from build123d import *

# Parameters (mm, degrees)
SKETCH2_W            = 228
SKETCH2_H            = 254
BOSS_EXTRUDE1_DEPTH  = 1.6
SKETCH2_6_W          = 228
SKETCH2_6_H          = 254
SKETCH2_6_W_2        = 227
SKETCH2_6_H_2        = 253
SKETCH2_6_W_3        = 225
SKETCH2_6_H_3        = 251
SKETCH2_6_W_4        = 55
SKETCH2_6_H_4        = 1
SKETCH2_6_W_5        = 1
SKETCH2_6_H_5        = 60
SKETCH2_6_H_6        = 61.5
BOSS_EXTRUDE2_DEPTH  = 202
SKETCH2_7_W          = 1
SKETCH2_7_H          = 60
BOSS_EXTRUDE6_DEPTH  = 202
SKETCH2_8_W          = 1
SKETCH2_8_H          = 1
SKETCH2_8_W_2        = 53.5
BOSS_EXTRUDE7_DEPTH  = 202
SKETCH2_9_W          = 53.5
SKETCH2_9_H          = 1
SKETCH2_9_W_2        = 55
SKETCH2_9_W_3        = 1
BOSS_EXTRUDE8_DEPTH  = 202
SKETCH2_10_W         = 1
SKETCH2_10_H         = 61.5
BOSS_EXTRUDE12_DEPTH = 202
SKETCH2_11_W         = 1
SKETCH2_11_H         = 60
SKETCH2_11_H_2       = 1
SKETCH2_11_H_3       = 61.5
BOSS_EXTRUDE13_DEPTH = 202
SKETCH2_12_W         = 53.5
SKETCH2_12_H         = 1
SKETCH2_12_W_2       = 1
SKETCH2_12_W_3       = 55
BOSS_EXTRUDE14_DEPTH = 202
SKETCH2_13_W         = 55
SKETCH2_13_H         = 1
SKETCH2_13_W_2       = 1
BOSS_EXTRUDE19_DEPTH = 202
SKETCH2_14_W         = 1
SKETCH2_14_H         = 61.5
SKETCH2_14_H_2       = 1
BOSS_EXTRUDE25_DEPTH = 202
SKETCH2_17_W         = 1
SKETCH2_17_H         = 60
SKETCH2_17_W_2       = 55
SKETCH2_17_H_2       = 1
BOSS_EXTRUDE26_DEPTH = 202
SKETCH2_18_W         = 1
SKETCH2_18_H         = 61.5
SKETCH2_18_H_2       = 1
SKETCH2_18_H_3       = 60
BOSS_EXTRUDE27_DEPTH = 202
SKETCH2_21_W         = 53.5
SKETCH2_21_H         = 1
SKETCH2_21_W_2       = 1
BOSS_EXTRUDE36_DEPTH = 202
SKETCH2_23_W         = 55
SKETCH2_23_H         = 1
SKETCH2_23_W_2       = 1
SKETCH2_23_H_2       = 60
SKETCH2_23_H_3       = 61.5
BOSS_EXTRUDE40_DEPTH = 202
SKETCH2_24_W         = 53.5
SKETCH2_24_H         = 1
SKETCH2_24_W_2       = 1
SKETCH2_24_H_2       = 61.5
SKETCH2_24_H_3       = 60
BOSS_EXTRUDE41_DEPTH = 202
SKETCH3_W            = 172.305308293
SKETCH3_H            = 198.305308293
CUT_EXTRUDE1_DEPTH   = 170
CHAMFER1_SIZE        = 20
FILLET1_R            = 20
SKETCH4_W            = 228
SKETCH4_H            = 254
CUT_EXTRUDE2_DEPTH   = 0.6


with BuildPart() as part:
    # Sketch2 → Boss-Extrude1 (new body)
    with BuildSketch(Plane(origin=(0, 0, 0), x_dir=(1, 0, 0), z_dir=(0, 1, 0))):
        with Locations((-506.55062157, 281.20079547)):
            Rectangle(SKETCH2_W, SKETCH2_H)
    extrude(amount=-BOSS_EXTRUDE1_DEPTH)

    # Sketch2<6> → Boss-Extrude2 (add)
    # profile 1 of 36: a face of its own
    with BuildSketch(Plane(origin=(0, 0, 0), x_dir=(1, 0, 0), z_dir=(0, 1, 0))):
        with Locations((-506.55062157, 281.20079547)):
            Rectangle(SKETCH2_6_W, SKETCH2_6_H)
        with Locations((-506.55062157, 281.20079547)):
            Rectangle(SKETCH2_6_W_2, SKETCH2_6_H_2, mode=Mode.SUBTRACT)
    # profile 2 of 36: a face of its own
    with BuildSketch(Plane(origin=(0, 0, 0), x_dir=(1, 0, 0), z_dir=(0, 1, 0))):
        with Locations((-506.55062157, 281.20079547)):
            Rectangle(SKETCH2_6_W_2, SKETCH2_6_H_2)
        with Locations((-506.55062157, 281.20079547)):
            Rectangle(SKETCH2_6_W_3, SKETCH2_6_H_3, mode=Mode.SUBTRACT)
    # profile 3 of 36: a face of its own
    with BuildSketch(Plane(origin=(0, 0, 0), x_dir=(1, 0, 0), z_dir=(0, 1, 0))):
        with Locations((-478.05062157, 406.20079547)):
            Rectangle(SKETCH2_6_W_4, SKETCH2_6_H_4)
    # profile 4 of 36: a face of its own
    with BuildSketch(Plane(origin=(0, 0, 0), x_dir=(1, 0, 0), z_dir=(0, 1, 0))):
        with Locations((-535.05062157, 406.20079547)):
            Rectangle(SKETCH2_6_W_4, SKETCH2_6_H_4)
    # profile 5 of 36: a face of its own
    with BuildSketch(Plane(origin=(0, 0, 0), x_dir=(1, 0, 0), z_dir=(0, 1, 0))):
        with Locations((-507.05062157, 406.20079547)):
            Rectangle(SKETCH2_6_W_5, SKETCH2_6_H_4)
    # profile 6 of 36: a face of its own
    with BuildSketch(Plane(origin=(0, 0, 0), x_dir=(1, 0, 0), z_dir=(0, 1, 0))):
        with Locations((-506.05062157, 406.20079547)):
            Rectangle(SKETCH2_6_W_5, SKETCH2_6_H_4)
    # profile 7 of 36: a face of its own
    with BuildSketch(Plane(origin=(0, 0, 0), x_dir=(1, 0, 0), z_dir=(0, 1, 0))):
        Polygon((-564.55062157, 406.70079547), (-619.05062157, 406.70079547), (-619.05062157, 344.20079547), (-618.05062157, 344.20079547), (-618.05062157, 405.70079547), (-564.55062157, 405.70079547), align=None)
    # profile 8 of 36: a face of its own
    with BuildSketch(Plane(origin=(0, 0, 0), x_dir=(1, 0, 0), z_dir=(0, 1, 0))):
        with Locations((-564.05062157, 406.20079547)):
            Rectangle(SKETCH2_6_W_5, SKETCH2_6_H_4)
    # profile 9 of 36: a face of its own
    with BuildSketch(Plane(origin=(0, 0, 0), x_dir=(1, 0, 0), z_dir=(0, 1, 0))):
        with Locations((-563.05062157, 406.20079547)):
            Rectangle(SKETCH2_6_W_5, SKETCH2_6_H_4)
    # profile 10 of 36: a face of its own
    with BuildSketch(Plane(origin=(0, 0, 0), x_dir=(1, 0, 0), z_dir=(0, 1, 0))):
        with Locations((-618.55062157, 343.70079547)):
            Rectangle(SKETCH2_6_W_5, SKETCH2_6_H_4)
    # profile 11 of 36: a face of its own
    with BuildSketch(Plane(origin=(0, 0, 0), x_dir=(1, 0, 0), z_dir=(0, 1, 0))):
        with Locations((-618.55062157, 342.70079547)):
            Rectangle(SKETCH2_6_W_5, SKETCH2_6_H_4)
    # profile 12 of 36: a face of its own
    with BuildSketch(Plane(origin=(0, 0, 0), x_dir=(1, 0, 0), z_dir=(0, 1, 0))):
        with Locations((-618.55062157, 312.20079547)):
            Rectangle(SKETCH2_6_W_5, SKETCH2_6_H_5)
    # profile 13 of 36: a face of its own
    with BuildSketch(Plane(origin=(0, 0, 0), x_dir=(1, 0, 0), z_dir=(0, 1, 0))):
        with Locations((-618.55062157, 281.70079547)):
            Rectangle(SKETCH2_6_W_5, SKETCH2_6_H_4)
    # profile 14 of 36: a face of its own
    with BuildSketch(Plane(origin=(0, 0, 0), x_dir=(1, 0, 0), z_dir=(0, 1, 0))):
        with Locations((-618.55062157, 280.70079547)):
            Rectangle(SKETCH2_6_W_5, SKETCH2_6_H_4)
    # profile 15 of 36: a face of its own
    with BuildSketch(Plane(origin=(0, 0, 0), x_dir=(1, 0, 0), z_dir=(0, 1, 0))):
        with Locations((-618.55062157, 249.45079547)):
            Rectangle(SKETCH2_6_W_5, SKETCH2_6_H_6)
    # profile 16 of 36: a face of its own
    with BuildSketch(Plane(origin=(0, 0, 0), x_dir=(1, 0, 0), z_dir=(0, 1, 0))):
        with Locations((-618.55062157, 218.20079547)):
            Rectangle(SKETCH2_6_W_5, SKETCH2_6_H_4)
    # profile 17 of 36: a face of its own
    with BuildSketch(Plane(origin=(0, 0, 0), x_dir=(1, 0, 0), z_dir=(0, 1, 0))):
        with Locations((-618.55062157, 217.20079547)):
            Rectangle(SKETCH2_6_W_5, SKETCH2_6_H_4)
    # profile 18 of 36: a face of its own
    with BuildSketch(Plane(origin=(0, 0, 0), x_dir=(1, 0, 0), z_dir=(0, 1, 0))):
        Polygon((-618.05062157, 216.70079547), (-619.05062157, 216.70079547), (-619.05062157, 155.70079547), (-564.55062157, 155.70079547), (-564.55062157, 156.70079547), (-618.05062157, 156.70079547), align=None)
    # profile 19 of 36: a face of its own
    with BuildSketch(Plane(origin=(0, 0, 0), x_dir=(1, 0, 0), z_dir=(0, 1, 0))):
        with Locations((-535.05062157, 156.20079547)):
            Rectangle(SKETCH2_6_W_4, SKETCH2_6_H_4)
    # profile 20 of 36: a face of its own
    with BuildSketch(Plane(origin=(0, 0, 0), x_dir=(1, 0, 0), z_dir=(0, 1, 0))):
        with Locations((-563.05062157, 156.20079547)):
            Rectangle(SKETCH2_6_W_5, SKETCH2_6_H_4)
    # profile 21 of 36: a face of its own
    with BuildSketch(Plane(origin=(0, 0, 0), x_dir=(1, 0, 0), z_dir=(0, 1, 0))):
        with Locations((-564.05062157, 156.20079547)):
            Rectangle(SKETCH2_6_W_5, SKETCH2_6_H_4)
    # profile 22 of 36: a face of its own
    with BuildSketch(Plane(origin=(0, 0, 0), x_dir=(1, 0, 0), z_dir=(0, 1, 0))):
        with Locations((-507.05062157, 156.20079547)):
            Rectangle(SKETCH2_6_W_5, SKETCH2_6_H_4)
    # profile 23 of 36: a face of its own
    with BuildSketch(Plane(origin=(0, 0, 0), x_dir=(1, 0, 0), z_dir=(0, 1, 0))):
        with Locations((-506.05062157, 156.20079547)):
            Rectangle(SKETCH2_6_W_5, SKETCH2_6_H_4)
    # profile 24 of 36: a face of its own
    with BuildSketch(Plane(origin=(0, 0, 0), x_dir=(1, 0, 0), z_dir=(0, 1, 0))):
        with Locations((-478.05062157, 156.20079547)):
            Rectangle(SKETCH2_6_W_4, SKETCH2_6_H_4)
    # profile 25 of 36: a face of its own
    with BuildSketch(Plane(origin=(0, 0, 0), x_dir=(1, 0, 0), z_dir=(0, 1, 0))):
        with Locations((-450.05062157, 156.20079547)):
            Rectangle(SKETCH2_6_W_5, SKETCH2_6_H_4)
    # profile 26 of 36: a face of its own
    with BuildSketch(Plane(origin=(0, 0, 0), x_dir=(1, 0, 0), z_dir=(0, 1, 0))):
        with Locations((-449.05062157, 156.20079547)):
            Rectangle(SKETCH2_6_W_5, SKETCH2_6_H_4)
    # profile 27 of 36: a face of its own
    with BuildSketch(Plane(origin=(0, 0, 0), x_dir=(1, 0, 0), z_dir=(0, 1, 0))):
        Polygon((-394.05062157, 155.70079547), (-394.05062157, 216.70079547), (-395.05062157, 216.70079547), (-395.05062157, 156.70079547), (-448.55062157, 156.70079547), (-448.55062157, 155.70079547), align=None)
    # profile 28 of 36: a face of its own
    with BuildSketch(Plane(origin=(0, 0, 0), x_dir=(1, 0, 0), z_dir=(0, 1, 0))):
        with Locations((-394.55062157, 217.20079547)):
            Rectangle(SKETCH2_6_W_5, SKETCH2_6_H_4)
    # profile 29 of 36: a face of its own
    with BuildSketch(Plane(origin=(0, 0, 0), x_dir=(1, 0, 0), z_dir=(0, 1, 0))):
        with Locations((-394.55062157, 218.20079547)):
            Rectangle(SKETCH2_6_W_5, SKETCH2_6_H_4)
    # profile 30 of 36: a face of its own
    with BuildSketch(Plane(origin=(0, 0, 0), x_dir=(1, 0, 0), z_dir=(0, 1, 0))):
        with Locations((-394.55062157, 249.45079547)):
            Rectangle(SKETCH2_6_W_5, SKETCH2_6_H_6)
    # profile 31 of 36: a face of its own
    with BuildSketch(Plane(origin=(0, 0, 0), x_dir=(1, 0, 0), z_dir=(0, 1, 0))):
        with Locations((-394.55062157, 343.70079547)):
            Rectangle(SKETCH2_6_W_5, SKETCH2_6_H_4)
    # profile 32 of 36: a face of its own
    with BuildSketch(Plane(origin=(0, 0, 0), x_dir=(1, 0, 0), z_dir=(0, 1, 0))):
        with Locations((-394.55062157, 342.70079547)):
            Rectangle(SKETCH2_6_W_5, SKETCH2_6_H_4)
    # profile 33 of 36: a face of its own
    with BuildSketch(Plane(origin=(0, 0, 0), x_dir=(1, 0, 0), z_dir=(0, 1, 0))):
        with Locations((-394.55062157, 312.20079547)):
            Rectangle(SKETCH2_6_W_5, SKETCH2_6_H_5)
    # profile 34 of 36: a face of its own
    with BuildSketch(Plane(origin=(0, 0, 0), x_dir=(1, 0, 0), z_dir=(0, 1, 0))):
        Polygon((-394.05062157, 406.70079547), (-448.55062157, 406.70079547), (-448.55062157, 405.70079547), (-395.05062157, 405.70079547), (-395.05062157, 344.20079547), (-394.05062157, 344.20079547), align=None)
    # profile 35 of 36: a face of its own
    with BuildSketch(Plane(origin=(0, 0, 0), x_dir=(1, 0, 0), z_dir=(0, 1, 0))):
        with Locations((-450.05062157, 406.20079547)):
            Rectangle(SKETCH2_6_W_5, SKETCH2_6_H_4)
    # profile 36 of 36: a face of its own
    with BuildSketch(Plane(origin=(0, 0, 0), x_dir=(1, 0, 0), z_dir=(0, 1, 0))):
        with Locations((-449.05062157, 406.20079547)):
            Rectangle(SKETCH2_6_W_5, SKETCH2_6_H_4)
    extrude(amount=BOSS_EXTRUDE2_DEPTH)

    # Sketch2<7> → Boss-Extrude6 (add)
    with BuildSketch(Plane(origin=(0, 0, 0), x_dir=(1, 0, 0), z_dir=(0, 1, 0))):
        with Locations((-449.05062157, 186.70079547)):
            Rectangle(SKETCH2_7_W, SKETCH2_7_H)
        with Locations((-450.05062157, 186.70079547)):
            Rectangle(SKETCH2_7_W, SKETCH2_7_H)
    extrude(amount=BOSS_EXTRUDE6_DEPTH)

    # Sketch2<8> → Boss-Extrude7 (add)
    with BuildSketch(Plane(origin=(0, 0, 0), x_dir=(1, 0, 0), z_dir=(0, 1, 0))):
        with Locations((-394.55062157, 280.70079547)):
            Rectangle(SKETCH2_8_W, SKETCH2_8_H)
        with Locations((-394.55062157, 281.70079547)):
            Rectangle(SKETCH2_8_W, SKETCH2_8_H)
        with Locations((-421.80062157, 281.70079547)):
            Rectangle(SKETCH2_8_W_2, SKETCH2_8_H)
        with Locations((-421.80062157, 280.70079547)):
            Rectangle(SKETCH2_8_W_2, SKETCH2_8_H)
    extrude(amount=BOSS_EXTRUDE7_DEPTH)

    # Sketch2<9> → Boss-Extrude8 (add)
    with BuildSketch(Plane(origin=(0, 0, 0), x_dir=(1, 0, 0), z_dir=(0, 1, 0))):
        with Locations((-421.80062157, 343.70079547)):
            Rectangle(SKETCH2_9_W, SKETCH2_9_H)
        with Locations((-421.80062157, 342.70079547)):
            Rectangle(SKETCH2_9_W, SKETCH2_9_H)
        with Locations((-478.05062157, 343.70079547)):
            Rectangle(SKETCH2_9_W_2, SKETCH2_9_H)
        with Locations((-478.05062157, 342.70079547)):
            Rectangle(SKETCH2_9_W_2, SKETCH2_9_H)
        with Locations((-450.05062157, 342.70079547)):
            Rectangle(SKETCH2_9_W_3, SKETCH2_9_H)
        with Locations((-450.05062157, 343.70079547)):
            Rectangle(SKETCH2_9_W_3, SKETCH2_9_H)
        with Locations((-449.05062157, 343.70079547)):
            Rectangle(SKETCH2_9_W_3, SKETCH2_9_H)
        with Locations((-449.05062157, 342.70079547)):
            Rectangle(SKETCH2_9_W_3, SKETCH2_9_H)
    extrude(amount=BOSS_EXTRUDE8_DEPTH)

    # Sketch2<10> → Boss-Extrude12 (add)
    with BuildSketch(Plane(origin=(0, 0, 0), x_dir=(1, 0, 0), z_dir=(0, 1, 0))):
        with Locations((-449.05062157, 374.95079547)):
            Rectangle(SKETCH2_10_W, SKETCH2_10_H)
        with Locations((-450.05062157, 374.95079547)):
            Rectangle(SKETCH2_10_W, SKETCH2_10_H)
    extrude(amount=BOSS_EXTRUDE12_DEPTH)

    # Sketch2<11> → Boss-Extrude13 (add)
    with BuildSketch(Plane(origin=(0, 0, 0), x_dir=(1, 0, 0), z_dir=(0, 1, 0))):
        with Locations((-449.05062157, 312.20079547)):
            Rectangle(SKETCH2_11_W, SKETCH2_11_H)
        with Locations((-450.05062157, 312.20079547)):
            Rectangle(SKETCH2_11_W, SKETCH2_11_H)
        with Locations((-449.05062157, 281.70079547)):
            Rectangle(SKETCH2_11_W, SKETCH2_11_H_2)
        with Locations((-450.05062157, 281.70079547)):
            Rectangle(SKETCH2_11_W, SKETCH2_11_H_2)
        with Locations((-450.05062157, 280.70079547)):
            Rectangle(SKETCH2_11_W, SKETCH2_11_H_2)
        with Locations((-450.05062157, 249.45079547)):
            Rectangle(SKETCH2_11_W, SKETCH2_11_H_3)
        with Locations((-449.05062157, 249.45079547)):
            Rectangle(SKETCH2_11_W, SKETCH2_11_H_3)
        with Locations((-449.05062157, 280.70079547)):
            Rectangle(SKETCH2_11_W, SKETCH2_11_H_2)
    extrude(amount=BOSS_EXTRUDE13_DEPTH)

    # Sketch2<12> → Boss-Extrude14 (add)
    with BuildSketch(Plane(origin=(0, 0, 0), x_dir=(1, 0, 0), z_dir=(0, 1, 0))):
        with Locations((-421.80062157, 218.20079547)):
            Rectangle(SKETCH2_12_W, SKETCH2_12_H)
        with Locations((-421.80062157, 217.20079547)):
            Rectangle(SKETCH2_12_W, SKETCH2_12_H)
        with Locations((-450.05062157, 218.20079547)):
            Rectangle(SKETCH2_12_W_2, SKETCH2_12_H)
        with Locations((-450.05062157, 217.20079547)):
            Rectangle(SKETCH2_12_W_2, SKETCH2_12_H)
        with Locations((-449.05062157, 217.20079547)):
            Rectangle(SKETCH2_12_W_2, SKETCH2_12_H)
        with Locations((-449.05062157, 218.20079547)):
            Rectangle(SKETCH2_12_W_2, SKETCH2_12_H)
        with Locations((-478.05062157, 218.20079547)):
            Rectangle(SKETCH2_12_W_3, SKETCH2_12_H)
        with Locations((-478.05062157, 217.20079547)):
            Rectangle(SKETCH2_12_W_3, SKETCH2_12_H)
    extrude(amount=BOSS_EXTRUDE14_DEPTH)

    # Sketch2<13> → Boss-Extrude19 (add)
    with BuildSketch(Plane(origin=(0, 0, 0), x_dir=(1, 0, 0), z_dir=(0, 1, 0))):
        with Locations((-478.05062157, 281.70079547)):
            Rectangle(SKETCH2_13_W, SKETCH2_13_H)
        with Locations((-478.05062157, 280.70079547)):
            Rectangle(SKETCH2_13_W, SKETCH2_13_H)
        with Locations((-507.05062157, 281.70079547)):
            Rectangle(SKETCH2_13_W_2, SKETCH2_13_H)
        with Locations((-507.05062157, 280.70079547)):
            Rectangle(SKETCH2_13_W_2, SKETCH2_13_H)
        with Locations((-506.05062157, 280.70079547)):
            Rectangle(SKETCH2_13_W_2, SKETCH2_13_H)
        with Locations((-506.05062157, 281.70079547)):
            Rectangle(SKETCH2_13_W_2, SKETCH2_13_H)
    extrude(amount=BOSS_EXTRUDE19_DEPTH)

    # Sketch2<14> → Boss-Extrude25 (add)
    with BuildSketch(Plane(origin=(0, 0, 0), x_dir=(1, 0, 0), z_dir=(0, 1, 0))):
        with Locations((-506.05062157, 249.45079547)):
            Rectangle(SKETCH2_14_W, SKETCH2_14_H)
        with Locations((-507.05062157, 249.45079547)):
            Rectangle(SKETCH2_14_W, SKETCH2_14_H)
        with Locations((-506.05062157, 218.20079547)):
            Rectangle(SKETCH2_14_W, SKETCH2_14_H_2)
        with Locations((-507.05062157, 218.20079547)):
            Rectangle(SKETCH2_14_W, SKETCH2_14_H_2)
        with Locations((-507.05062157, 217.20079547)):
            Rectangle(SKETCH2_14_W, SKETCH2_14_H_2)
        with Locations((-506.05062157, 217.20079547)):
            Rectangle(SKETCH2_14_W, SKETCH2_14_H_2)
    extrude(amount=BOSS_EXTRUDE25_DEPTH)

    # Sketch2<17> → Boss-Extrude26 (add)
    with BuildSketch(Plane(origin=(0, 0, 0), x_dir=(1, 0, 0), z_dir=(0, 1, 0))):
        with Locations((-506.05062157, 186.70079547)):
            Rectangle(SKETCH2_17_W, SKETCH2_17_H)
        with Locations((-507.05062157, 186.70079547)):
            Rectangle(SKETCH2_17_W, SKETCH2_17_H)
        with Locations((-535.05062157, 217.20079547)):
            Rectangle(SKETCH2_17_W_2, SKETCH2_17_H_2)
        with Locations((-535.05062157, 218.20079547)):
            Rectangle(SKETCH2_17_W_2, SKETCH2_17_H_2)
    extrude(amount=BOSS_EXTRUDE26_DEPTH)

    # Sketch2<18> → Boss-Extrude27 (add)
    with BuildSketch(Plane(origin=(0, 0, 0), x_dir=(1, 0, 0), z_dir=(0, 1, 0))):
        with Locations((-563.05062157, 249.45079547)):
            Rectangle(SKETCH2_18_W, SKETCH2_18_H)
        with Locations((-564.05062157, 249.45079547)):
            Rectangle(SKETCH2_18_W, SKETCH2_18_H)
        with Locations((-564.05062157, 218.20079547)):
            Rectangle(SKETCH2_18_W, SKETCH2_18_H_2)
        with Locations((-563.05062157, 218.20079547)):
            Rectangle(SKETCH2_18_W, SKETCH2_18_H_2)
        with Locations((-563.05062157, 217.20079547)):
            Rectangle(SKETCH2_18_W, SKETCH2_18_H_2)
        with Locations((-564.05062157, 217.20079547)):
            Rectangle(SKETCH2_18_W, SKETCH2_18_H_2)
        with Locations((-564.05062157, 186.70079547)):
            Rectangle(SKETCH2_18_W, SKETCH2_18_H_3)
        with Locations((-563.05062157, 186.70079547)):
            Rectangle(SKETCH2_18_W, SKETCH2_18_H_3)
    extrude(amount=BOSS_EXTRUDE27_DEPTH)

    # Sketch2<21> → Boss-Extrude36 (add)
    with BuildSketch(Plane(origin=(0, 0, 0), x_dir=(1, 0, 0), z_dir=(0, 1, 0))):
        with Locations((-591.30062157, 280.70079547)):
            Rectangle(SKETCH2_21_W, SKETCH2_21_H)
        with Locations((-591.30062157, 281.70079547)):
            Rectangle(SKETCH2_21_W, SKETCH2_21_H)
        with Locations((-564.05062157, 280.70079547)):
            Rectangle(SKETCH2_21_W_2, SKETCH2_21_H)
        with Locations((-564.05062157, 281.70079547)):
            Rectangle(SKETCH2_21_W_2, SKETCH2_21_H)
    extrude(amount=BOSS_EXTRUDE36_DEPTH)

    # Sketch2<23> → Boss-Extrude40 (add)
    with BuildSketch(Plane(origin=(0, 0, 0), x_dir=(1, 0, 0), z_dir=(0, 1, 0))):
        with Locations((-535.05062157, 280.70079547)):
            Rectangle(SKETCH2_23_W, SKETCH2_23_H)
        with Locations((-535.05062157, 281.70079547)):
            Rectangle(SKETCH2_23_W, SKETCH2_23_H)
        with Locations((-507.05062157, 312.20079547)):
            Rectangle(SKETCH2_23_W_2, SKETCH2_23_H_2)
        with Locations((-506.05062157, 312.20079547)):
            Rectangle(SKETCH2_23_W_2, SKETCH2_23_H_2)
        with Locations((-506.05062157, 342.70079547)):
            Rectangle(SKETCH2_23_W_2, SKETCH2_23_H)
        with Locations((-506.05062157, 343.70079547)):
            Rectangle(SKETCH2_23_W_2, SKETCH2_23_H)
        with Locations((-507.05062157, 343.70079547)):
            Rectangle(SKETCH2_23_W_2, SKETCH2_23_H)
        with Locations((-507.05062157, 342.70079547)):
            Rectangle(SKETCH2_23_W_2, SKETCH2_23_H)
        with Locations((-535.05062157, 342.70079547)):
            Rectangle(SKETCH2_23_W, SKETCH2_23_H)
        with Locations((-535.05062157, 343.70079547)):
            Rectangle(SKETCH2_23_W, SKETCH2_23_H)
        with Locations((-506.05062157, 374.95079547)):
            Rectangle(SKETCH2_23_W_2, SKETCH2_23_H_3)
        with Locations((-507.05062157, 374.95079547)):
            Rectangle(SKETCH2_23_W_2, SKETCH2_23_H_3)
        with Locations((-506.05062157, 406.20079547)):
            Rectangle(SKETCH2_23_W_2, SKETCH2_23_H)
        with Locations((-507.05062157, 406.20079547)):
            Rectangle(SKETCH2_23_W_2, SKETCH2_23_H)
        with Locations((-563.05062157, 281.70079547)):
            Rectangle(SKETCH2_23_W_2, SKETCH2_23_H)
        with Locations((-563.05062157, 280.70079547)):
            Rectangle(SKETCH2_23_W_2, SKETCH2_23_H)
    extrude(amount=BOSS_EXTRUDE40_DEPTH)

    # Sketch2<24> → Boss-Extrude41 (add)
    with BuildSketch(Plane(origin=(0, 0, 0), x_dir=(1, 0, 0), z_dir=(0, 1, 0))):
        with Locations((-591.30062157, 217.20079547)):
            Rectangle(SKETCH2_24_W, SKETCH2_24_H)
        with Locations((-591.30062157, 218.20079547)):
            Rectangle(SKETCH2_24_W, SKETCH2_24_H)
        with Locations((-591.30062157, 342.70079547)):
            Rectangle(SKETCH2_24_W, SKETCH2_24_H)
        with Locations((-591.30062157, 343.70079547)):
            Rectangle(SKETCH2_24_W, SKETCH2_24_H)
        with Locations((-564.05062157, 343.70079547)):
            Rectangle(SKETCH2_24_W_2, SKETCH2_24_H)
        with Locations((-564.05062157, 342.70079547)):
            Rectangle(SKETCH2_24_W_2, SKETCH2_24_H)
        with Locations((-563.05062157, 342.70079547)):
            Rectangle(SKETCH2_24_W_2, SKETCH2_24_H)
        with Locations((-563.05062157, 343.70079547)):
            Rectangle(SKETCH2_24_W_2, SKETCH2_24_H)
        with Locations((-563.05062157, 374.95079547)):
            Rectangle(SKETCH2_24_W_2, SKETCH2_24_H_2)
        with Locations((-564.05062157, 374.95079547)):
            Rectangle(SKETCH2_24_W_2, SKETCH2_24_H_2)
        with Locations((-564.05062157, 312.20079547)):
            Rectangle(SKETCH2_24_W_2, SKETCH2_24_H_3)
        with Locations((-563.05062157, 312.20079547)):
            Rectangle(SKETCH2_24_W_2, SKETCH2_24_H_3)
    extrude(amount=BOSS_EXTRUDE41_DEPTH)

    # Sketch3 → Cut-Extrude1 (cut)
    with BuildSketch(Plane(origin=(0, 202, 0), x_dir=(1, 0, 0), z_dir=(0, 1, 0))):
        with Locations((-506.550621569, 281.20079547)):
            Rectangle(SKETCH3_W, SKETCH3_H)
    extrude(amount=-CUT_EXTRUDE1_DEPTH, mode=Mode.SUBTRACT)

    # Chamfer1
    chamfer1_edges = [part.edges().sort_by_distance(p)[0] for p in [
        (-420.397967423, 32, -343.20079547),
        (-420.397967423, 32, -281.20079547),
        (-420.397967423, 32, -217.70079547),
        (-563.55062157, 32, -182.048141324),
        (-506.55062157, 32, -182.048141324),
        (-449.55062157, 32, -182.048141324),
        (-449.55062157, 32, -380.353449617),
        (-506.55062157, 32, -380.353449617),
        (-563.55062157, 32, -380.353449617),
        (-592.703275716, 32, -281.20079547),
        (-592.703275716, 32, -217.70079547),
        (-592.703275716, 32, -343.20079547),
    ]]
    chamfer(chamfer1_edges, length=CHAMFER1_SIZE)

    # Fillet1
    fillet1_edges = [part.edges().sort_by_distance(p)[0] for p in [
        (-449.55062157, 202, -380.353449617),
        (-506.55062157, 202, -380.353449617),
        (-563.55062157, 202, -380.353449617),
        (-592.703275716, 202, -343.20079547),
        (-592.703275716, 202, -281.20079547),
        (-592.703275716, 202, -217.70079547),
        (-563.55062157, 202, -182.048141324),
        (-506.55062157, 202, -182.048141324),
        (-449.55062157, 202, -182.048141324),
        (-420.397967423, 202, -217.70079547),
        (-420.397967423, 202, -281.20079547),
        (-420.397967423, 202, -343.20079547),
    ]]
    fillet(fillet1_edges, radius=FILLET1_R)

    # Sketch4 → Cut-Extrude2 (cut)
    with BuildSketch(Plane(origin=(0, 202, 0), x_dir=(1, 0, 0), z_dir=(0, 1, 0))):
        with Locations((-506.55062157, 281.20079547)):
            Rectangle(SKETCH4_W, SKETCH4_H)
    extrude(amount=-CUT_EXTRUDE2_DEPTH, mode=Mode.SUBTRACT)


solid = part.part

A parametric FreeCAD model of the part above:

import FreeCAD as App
import Part
import Sketcher
Q = App.Units.Quantity


def edges_at(feature, points):
    """Names of the edges that pass closest to the given points."""
    edges = feature.Shape.Edges
    near = lambda p: min(range(len(edges)), key=lambda i: edges[i].distToShape(Part.Vertex(*p))[0])
    return sorted({f"Edge{near(p) + 1}" for p in points})


def add_polygon(sketch, points):
    """Adds a closed chain of lines whose ends are joined by coincident constraints."""
    first, n = sketch.GeometryCount, len(points)
    for a, b in zip(points, points[1:] + points[:1]):
        sketch.addGeometry(Part.LineSegment(App.Vector(*a, 0), App.Vector(*b, 0)), False)
    for i in range(n):
        sketch.addConstraint(Sketcher.Constraint("Coincident", first + i, 2, first + (i + 1) % n, 1))

doc = App.newDocument("Part")
body = doc.addObject("PartDesign::Body", "Body")

sketch1 = body.newObject("Sketcher::SketchObject", "Sketch")
sketch1.AttachmentSupport = (doc.getObject("XZ_Plane"), [""])
sketch1.MapMode = "FlatFace"
add_polygon(sketch1, [(-620.550622, -408.200795), (-620.550622, -154.200795), (-392.550622, -154.200795), (-392.550622, -408.200795)])
sketch1.addConstraint([
    Sketcher.Constraint("Vertical", 0),
    Sketcher.Constraint("Horizontal", 1),
    Sketcher.Constraint("Vertical", 2),
    Sketcher.Constraint("Horizontal", 3),
    Sketcher.Constraint("DistanceX", 1, 1, 1, 2, Q("228 mm")),
    Sketcher.Constraint("DistanceY", 0, 1, 0, 2, Q("254 mm")),
    Sketcher.Constraint("DistanceX", 0, 2, -1, 1, Q("620.550622 mm")),
    Sketcher.Constraint("DistanceY", 0, 2, -1, 1, Q("154.200795 mm")),
])
pad1 = body.newObject("PartDesign::Pad", "Pad")
pad1.Profile = sketch1
pad1.Length = 1.6

sketch2 = body.newObject("Sketcher::SketchObject", "Sketch001")
sketch2.AttachmentSupport = (doc.getObject("XZ_Plane"), [""])
sketch2.MapMode = "FlatFace"
add_polygon(sketch2, [(-620.550622, -408.200795), (-620.550622, -154.200795), (-392.550622, -154.200795), (-392.550622, -408.200795)])
add_polygon(sketch2, [(-394.050622, -282.200795), (-394.050622, -280.200795), (-395.050622, -280.200795), (-395.050622, -156.700795), (-618.050622, -156.700795), (-618.050622, -405.700795), (-395.050622, -405.700795), (-395.050622, -282.200795)])
sketch2.addConstraint([
    Sketcher.Constraint("Vertical", 0),
    Sketcher.Constraint("Horizontal", 1),
    Sketcher.Constraint("Vertical", 2),
    Sketcher.Constraint("Horizontal", 3),
    Sketcher.Constraint("Vertical", 4),
    Sketcher.Constraint("Horizontal", 5),
    Sketcher.Constraint("Vertical", 6),
    Sketcher.Constraint("Horizontal", 7),
    Sketcher.Constraint("Vertical", 8),
    Sketcher.Constraint("Horizontal", 9),
    Sketcher.Constraint("Vertical", 10),
    Sketcher.Constraint("Horizontal", 11),
    Sketcher.Constraint("Vertical", 6, 2, 9, 2),
    Sketcher.Constraint("Equal", 6, 10),
    Sketcher.Constraint("DistanceX", 1, 1, 1, 2, Q("228 mm")),
    Sketcher.Constraint("DistanceX", 5, 2, 5, 1, Q("1 mm")),
    Sketcher.Constraint("DistanceX", 7, 2, 7, 1, Q("223 mm")),
    Sketcher.Constraint("DistanceY", 0, 1, 0, 2, Q("254 mm")),
    Sketcher.Constraint("DistanceY", 4, 1, 4, 2, Q("2 mm")),
    Sketcher.Constraint("DistanceY", 8, 2, 8, 1, Q("249 mm")),
    Sketcher.Constraint("DistanceY", 4, 2, 1, 2, Q("126 mm")),
    Sketcher.Constraint("DistanceX", 4, 2, 1, 2, Q("1.5 mm")),
    Sketcher.Constraint("DistanceX", 0, 2, -1, 1, Q("620.550622 mm")),
    Sketcher.Constraint("DistanceY", 0, 2, -1, 1, Q("154.200795 mm")),
])
pad2 = body.newObject("PartDesign::Pad", "Pad001")
pad2.Profile = sketch2
pad2.Length = 202
pad2.Reversed = True

sketch3 = body.newObject("Sketcher::SketchObject", "Sketch002")
sketch3.AttachmentSupport = (doc.getObject("XZ_Plane"), [""])
sketch3.MapMode = "FlatFace"
add_polygon(sketch3, [(-448.550622, -156.700795), (-448.550622, -216.700795), (-450.550622, -216.700795), (-450.550622, -156.700795)])
sketch3.addConstraint([
    Sketcher.Constraint("Vertical", 0),
    Sketcher.Constraint("Horizontal", 1),
    Sketcher.Constraint("Vertical", 2),
    Sketcher.Constraint("Horizontal", 3),
    Sketcher.Constraint("DistanceX", 1, 2, 1, 1, Q("2 mm")),
    Sketcher.Constraint("DistanceY", 0, 2, 0, 1, Q("60 mm")),
    Sketcher.Constraint("DistanceX", 0, 2, -1, 1, Q("448.550622 mm")),
    Sketcher.Constraint("DistanceY", 0, 2, -1, 1, Q("216.700795 mm")),
])
pad3 = body.newObject("PartDesign::Pad", "Pad002")
pad3.Profile = sketch3
pad3.Length = 202
pad3.Reversed = True

sketch4 = body.newObject("Sketcher::SketchObject", "Sketch003")
sketch4.AttachmentSupport = (doc.getObject("XZ_Plane"), [""])
sketch4.MapMode = "FlatFace"
add_polygon(sketch4, [(-394.050622, -280.200795), (-394.050622, -282.200795), (-448.550622, -282.200795), (-448.550622, -280.200795)])
sketch4.addConstraint([
    Sketcher.Constraint("Vertical", 0),
    Sketcher.Constraint("Horizontal", 1),
    Sketcher.Constraint("Vertical", 2),
    Sketcher.Constraint("Horizontal", 3),
    Sketcher.Constraint("DistanceY", 0, 2, 0, 1, Q("2 mm")),
    Sketcher.Constraint("DistanceX", 1, 2, 1, 1, Q("54.5 mm")),
    Sketcher.Constraint("DistanceX", 0, 2, -1, 1, Q("394.050622 mm")),
    Sketcher.Constraint("DistanceY", 0, 2, -1, 1, Q("282.200795 mm")),
])
pad4 = body.newObject("PartDesign::Pad", "Pad003")
pad4.Profile = sketch4
pad4.Length = 202
pad4.Reversed = True

sketch5 = body.newObject("Sketcher::SketchObject", "Sketch004")
sketch5.AttachmentSupport = (doc.getObject("XZ_Plane"), [""])
sketch5.MapMode = "FlatFace"
add_polygon(sketch5, [(-395.050622, -342.200795), (-395.050622, -344.200795), (-505.550622, -344.200795), (-505.550622, -342.200795)])
sketch5.addConstraint([
    Sketcher.Constraint("Vertical", 0),
    Sketcher.Constraint("Horizontal", 1),
    Sketcher.Constraint("Vertical", 2),
    Sketcher.Constraint("Horizontal", 3),
    Sketcher.Constraint("DistanceY", 0, 2, 0, 1, Q("2 mm")),
    Sketcher.Constraint("DistanceX", 1, 2, 1, 1, Q("110.5 mm")),
    Sketcher.Constraint("DistanceX", 0, 2, -1, 1, Q("395.050622 mm")),
    Sketcher.Constraint("DistanceY", 0, 2, -1, 1, Q("344.200795 mm")),
])
pad5 = body.newObject("PartDesign::Pad", "Pad004")
pad5.Profile = sketch5
pad5.Length = 202
pad5.Reversed = True

sketch6 = body.newObject("Sketcher::SketchObject", "Sketch005")
sketch6.AttachmentSupport = (doc.getObject("XZ_Plane"), [""])
sketch6.MapMode = "FlatFace"
add_polygon(sketch6, [(-448.550622, -344.200795), (-448.550622, -405.700795), (-450.550622, -405.700795), (-450.550622, -344.200795)])
sketch6.addConstraint([
    Sketcher.Constraint("Vertical", 0),
    Sketcher.Constraint("Horizontal", 1),
    Sketcher.Constraint("Vertical", 2),
    Sketcher.Constraint("Horizontal", 3),
    Sketcher.Constraint("DistanceX", 1, 2, 1, 1, Q("2 mm")),
    Sketcher.Constraint("DistanceY", 0, 2, 0, 1, Q("61.5 mm")),
    Sketcher.Constraint("DistanceX", 0, 2, -1, 1, Q("448.550622 mm")),
    Sketcher.Constraint("DistanceY", 0, 2, -1, 1, Q("405.700795 mm")),
])
pad6 = body.newObject("PartDesign::Pad", "Pad005")
pad6.Profile = sketch6
pad6.Length = 202
pad6.Reversed = True

sketch7 = body.newObject("Sketcher::SketchObject", "Sketch006")
sketch7.AttachmentSupport = (doc.getObject("XZ_Plane"), [""])
sketch7.MapMode = "FlatFace"
add_polygon(sketch7, [(-448.550622, -342.200795), (-450.550622, -342.200795), (-450.550622, -218.700795), (-448.550622, -218.700795)])
sketch7.addConstraint([
    Sketcher.Constraint("Horizontal", 0),
    Sketcher.Constraint("Vertical", 1),
    Sketcher.Constraint("Horizontal", 2),
    Sketcher.Constraint("Vertical", 3),
    Sketcher.Constraint("DistanceX", 0, 2, 0, 1, Q("2 mm")),
    Sketcher.Constraint("DistanceY", 1, 1, 1, 2, Q("123.5 mm")),
    Sketcher.Constraint("DistanceX", 0, 2, -1, 1, Q("450.550622 mm")),
    Sketcher.Constraint("DistanceY", 0, 2, -1, 1, Q("342.200795 mm")),
])
pad7 = body.newObject("PartDesign::Pad", "Pad006")
pad7.Profile = sketch7
pad7.Length = 202
pad7.Reversed = True

sketch8 = body.newObject("Sketcher::SketchObject", "Sketch007")
sketch8.AttachmentSupport = (doc.getObject("XZ_Plane"), [""])
sketch8.MapMode = "FlatFace"
add_polygon(sketch8, [(-395.050622, -216.700795), (-395.050622, -218.700795), (-505.550622, -218.700795), (-505.550622, -216.700795)])
sketch8.addConstraint([
    Sketcher.Constraint("Vertical", 0),
    Sketcher.Constraint("Horizontal", 1),
    Sketcher.Constraint("Vertical", 2),
    Sketcher.Constraint("Horizontal", 3),
    Sketcher.Constraint("DistanceY", 0, 2, 0, 1, Q("2 mm")),
    Sketcher.Constraint("DistanceX", 1, 2, 1, 1, Q("110.5 mm")),
    Sketcher.Constraint("DistanceX", 0, 2, -1, 1, Q("395.050622 mm")),
    Sketcher.Constraint("DistanceY", 0, 2, -1, 1, Q("218.700795 mm")),
])
pad8 = body.newObject("PartDesign::Pad", "Pad007")
pad8.Profile = sketch8
pad8.Length = 202
pad8.Reversed = True

sketch9 = body.newObject("Sketcher::SketchObject", "Sketch008")
sketch9.AttachmentSupport = (doc.getObject("XZ_Plane"), [""])
sketch9.MapMode = "FlatFace"
add_polygon(sketch9, [(-507.550622, -282.200795), (-507.550622, -280.200795), (-450.550622, -280.200795), (-450.550622, -282.200795)])
sketch9.addConstraint([
    Sketcher.Constraint("Vertical", 0),
    Sketcher.Constraint("Horizontal", 1),
    Sketcher.Constraint("Vertical", 2),
    Sketcher.Constraint("Horizontal", 3),
    Sketcher.Constraint("DistanceX", 1, 1, 1, 2, Q("57 mm")),
    Sketcher.Constraint("DistanceY", 0, 1, 0, 2, Q("2 mm")),
    Sketcher.Constraint("DistanceX", 0, 2, -1, 1, Q("507.550622 mm")),
    Sketcher.Constraint("DistanceY", 0, 2, -1, 1, Q("280.200795 mm")),
])
pad9 = body.newObject("PartDesign::Pad", "Pad008")
pad9.Profile = sketch9
pad9.Length = 202
pad9.Reversed = True

sketch10 = body.newObject("Sketcher::SketchObject", "Sketch009")
sketch10.AttachmentSupport = (doc.getObject("XZ_Plane"), [""])
sketch10.MapMode = "FlatFace"
add_polygon(sketch10, [(-505.550622, -280.200795), (-507.550622, -280.200795), (-507.550622, -216.700795), (-505.550622, -216.700795)])
sketch10.addConstraint([
    Sketcher.Constraint("Horizontal", 0),
    Sketcher.Constraint("Vertical", 1),
    Sketcher.Constraint("Horizontal", 2),
    Sketcher.Constraint("Vertical", 3),
    Sketcher.Constraint("DistanceX", 0, 2, 0, 1, Q("2 mm")),
    Sketcher.Constraint("DistanceY", 1, 1, 1, 2, Q("63.5 mm")),
    Sketcher.Constraint("DistanceX", 0, 2, -1, 1, Q("507.550622 mm")),
    Sketcher.Constraint("DistanceY", 0, 2, -1, 1, Q("280.200795 mm")),
])
pad10 = body.newObject("PartDesign::Pad", "Pad009")
pad10.Profile = sketch10
pad10.Length = 202
pad10.Reversed = True

sketch11 = body.newObject("Sketcher::SketchObject", "Sketch010")
sketch11.AttachmentSupport = (doc.getObject("XZ_Plane"), [""])
sketch11.MapMode = "FlatFace"
add_polygon(sketch11, [(-505.550622, -156.700795), (-505.550622, -216.700795), (-507.550622, -216.700795), (-507.550622, -156.700795)])
add_polygon(sketch11, [(-562.550622, -216.700795), (-507.550622, -216.700795), (-507.550622, -218.700795), (-562.550622, -218.700795)])
sketch11.addConstraint([
    Sketcher.Constraint("Vertical", 0),
    Sketcher.Constraint("Horizontal", 1),
    Sketcher.Constraint("Vertical", 2),
    Sketcher.Constraint("Horizontal", 3),
    Sketcher.Constraint("Horizontal", 4),
    Sketcher.Constraint("Vertical", 5),
    Sketcher.Constraint("Horizontal", 6),
    Sketcher.Constraint("Vertical", 7),
    Sketcher.Constraint("Coincident", 4, 2, 1, 2),
    Sketcher.Constraint("Equal", 3, 5),
    Sketcher.Constraint("DistanceX", 1, 2, 1, 1, Q("2 mm")),
    Sketcher.Constraint("DistanceX", 4, 1, 4, 2, Q("55 mm")),
    Sketcher.Constraint("DistanceY", 0, 2, 0, 1, Q("60 mm")),
    Sketcher.Constraint("DistanceX", 0, 2, -1, 1, Q("505.550622 mm")),
    Sketcher.Constraint("DistanceY", 0, 2, -1, 1, Q("216.700795 mm")),
])
pad11 = body.newObject("PartDesign::Pad", "Pad010")
pad11.Profile = sketch11
pad11.Length = 202
pad11.Reversed = True

sketch12 = body.newObject("Sketcher::SketchObject", "Sketch011")
sketch12.AttachmentSupport = (doc.getObject("XZ_Plane"), [""])
sketch12.MapMode = "FlatFace"
add_polygon(sketch12, [(-562.550622, -280.200795), (-564.550622, -280.200795), (-564.550622, -156.700795), (-562.550622, -156.700795)])
sketch12.addConstraint([
    Sketcher.Constraint("Horizontal", 0),
    Sketcher.Constraint("Vertical", 1),
    Sketcher.Constraint("Horizontal", 2),
    Sketcher.Constraint("Vertical", 3),
    Sketcher.Constraint("DistanceX", 0, 2, 0, 1, Q("2 mm")),
    Sketcher.Constraint("DistanceY", 1, 1, 1, 2, Q("123.5 mm")),
    Sketcher.Constraint("DistanceX", 0, 2, -1, 1, Q("564.550622 mm")),
    Sketcher.Constraint("DistanceY", 0, 2, -1, 1, Q("280.200795 mm")),
])
pad12 = body.newObject("PartDesign::Pad", "Pad011")
pad12.Profile = sketch12
pad12.Length = 202
pad12.Reversed = True

sketch13 = body.newObject("Sketcher::SketchObject", "Sketch012")
sketch13.AttachmentSupport = (doc.getObject("XZ_Plane"), [""])
sketch13.MapMode = "FlatFace"
add_polygon(sketch13, [(-618.050622, -280.200795), (-563.550622, -280.200795), (-563.550622, -282.200795), (-618.050622, -282.200795)])
sketch13.addConstraint([
    Sketcher.Constraint("Horizontal", 0),
    Sketcher.Constraint("Vertical", 1),
    Sketcher.Constraint("Horizontal", 2),
    Sketcher.Constraint("Vertical", 3),
    Sketcher.Constraint("DistanceY", 1, 2, 1, 1, Q("2 mm")),
    Sketcher.Constraint("DistanceX", 0, 1, 0, 2, Q("54.5 mm")),
    Sketcher.Constraint("DistanceX", 0, 2, -1, 1, Q("563.550622 mm")),
    Sketcher.Constraint("DistanceY", 0, 2, -1, 1, Q("280.200795 mm")),
])
pad13 = body.newObject("PartDesign::Pad", "Pad012")
pad13.Profile = sketch13
pad13.Length = 202
pad13.Reversed = True

sketch14 = body.newObject("Sketcher::SketchObject", "Sketch013")
sketch14.AttachmentSupport = (doc.getObject("XZ_Plane"), [""])
sketch14.MapMode = "FlatFace"
add_polygon(sketch14, [(-507.550622, -280.200795), (-507.550622, -282.200795), (-563.550622, -282.200795), (-563.550622, -280.200795)])
add_polygon(sketch14, [(-507.550622, -282.200795), (-505.550622, -282.200795), (-505.550622, -406.700795), (-507.550622, -406.700795), (-507.550622, -344.200795), (-562.550622, -344.200795), (-562.550622, -342.200795), (-507.550622, -342.200795)])
sketch14.addConstraint([
    Sketcher.Constraint("Vertical", 0),
    Sketcher.Constraint("Horizontal", 1),
    Sketcher.Constraint("Vertical", 2),
    Sketcher.Constraint("Horizontal", 3),
    Sketcher.Constraint("Horizontal", 4),
    Sketcher.Constraint("Vertical", 5),
    Sketcher.Constraint("Horizontal", 6),
    Sketcher.Constraint("Vertical", 7),
    Sketcher.Constraint("Horizontal", 8),
    Sketcher.Constraint("Vertical", 9),
    Sketcher.Constraint("Horizontal", 10),
    Sketcher.Constraint("Vertical", 11),
    Sketcher.Constraint("Coincident", 11, 2, 0, 2),
    Sketcher.Constraint("Vertical", 3, 2, 6, 2),
    Sketcher.Constraint("Equal", 6, 0),
    Sketcher.Constraint("Equal", 2, 9),
    Sketcher.Constraint("DistanceX", 1, 2, 1, 1, Q("56 mm")),
    Sketcher.Constraint("DistanceX", 4, 1, 4, 2, Q("2 mm")),
    Sketcher.Constraint("DistanceX", 8, 2, 8, 1, Q("55 mm")),
    Sketcher.Constraint("DistanceY", 11, 1, 11, 2, Q("60 mm")),
    Sketcher.Constraint("DistanceY", 5, 2, 5, 1, Q("124.5 mm")),
    Sketcher.Constraint("DistanceX", 0, 2, -1, 1, Q("507.550622 mm")),
    Sketcher.Constraint("DistanceY", 0, 2, -1, 1, Q("282.200795 mm")),
])
pad14 = body.newObject("PartDesign::Pad", "Pad013")
pad14.Profile = sketch14
pad14.Length = 202
pad14.Reversed = True

sketch15 = body.newObject("Sketcher::SketchObject", "Sketch014")
sketch15.AttachmentSupport = (doc.getObject("XZ_Plane"), [""])
sketch15.MapMode = "FlatFace"
add_polygon(sketch15, [(-618.050622, -216.700795), (-564.550622, -216.700795), (-564.550622, -218.700795), (-618.050622, -218.700795)])
add_polygon(sketch15, [(-618.050622, -342.200795), (-564.550622, -342.200795), (-564.550622, -282.200795), (-562.550622, -282.200795), (-562.550622, -405.700795), (-564.550622, -405.700795), (-564.550622, -344.200795), (-618.050622, -344.200795)])
sketch15.addConstraint([
    Sketcher.Constraint("Horizontal", 0),
    Sketcher.Constraint("Vertical", 1),
    Sketcher.Constraint("Horizontal", 2),
    Sketcher.Constraint("Vertical", 3),
    Sketcher.Constraint("Horizontal", 4),
    Sketcher.Constraint("Vertical", 5),
    Sketcher.Constraint("Horizontal", 6),
    Sketcher.Constraint("Vertical", 7),
    Sketcher.Constraint("Horizontal", 8),
    Sketcher.Constraint("Vertical", 9),
    Sketcher.Constraint("Horizontal", 10),
    Sketcher.Constraint("Vertical", 11),
    Sketcher.Constraint("Vertical", 1, 2, 4, 2),
    Sketcher.Constraint("Vertical", 5, 2, 8, 2),
    Sketcher.Constraint("Vertical", 3, 2, 10, 2),
    Sketcher.Constraint("Equal", 8, 1),
    Sketcher.Constraint("Equal", 3, 11),
    Sketcher.Constraint("DistanceX", 6, 1, 6, 2, Q("2 mm")),
    Sketcher.Constraint("DistanceY", 5, 1, 5, 2, Q("60 mm")),
    Sketcher.Constraint("DistanceX", 0, 1, 0, 2, Q("53.5 mm")),
    Sketcher.Constraint("DistanceY", 7, 2, 7, 1, Q("123.5 mm")),
    Sketcher.Constraint("DistanceY", 7, 2, 1, 2, Q("187 mm")),
    Sketcher.Constraint("DistanceX", 0, 2, -1, 1, Q("564.550622 mm")),
    Sketcher.Constraint("DistanceY", 0, 2, -1, 1, Q("216.700795 mm")),
])
pad15 = body.newObject("PartDesign::Pad", "Pad014")
pad15.Profile = sketch15
pad15.Length = 202
pad15.Reversed = True

sketch16 = body.newObject("Sketcher::SketchObject", "Sketch015")
sketch16.AttachmentSupport = (doc.getObject("XZ_Plane"), [""])
sketch16.MapMode = "FlatFace"
sketch16.AttachmentOffset = App.Placement(App.Vector(0, 0, -202), App.Rotation())
add_polygon(sketch16, [(-592.703276, -380.35345), (-592.703276, -182.048141), (-420.397967, -182.048141), (-420.397967, -380.35345)])
sketch16.addConstraint([
    Sketcher.Constraint("Vertical", 0),
    Sketcher.Constraint("Horizontal", 1),
    Sketcher.Constraint("Vertical", 2),
    Sketcher.Constraint("Horizontal", 3),
    Sketcher.Constraint("DistanceX", 1, 1, 1, 2, Q("172.305308 mm")),
    Sketcher.Constraint("DistanceY", 0, 1, 0, 2, Q("198.305308 mm")),
    Sketcher.Constraint("DistanceY", 0, 2, -1, 1, Q("182.048141 mm")),
    Sketcher.Constraint("DistanceX", 0, 2, -1, 1, Q("592.703276 mm")),
])
pocket1 = body.newObject("PartDesign::Pocket", "Pocket")
pocket1.Profile = sketch16
pocket1.Length = 170
pocket1.Reversed = True
doc.recompute()

chamfer = body.newObject("PartDesign::Chamfer", "Chamfer")
chamfer.Base = (pocket1, edges_at(pocket1, [
    (-420.398, 32, -343.201),
    (-420.398, 32, -281.201),
    (-420.398, 32, -217.701),
    (-563.551, 32, -182.048),
    (-506.551, 32, -182.048),
    (-449.551, 32, -182.048),
    (-449.551, 32, -380.353),
    (-506.551, 32, -380.353),
    (-563.551, 32, -380.353),
    (-592.703, 32, -281.201),
    (-592.703, 32, -217.701),
    (-592.703, 32, -343.201),
]))
chamfer.Size = 20
doc.recompute()

fillet = body.newObject("PartDesign::Fillet", "Fillet")
fillet.Base = (chamfer, edges_at(chamfer, [
    (-449.551, 202, -380.353),
    (-506.551, 202, -380.353),
    (-563.551, 202, -380.353),
    (-592.703, 202, -343.201),
    (-592.703, 202, -281.201),
    (-592.703, 202, -217.701),
    (-563.551, 202, -182.048),
    (-506.551, 202, -182.048),
    (-449.551, 202, -182.048),
    (-420.398, 202, -217.701),
    (-420.398, 202, -281.201),
    (-420.398, 202, -343.201),
]))
fillet.Radius = 20

sketch17 = body.newObject("Sketcher::SketchObject", "Sketch016")
sketch17.AttachmentSupport = (doc.getObject("XZ_Plane"), [""])
sketch17.MapMode = "FlatFace"
sketch17.AttachmentOffset = App.Placement(App.Vector(0, 0, -202), App.Rotation())
add_polygon(sketch17, [(-620.550622, -408.200795), (-620.550622, -154.200795), (-392.550622, -154.200795), (-392.550622, -408.200795)])
sketch17.addConstraint([
    Sketcher.Constraint("Vertical", 0),
    Sketcher.Constraint("Horizontal", 1),
    Sketcher.Constraint("Vertical", 2),
    Sketcher.Constraint("Horizontal", 3),
    Sketcher.Constraint("DistanceX", 1, 1, 1, 2, Q("228 mm")),
    Sketcher.Constraint("DistanceY", 0, 1, 0, 2, Q("254 mm")),
    Sketcher.Constraint("DistanceX", 0, 2, -1, 1, Q("620.550622 mm")),
    Sketcher.Constraint("DistanceY", 0, 2, -1, 1, Q("154.200795 mm")),
])
pocket2 = body.newObject("PartDesign::Pocket", "Pocket001")
pocket2.Profile = sketch17
pocket2.Length = 0.6
pocket2.Reversed = True

doc.recompute()
